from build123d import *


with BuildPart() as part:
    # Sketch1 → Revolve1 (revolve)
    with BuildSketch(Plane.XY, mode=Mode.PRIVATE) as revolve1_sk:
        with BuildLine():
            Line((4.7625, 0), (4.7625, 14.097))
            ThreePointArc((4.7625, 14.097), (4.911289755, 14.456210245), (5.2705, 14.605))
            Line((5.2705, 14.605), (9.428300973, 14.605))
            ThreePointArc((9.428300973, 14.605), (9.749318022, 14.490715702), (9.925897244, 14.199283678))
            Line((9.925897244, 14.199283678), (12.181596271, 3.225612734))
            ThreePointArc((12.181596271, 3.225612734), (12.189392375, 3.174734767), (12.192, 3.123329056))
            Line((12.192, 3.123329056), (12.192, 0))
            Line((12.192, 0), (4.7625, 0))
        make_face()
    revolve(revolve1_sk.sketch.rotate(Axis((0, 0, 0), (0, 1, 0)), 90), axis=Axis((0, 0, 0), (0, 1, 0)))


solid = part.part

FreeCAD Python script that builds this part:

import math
import FreeCAD as App
import Part
import Sketcher
Q = App.Units.Quantity

doc = App.newDocument("Part")
body = doc.addObject("PartDesign::Body", "Body")

# Sketch on XY plane
sketch1 = body.newObject("Sketcher::SketchObject", "Sketch")
sketch1.AttachmentSupport = (doc.getObject("XY_Plane"), [""])
sketch1.MapMode = "FlatFace"
sketch1.addGeometry([
    Part.LineSegment(App.Vector(4.7625, 14.097, 0), App.Vector(4.7625, 0, 0)),  # 0
    Part.LineSegment(App.Vector(4.7625, 0, 0), App.Vector(12.192, 0, 0)),  # 1
    Part.LineSegment(App.Vector(12.192, 0, 0), App.Vector(12.192, 3.123329, 0)),  # 2
    Part.ArcOfCircle(Part.Circle(App.Vector(11.684, 3.123329, 0), App.Vector(0, 0, 1), 0.508), math.radians(0), math.radians(11.61567)),  # 3
    Part.LineSegment(App.Vector(12.181596, 3.225613, 0), App.Vector(9.925897, 14.199284, 0)),  # 4
    Part.ArcOfCircle(Part.Circle(App.Vector(9.428301, 14.097, 0), App.Vector(0, 0, 1), 0.508), math.radians(11.61567), math.radians(90)),  # 5
    Part.LineSegment(App.Vector(9.428301, 14.605, 0), App.Vector(5.2705, 14.605, 0)),  # 6
    Part.ArcOfCircle(Part.Circle(App.Vector(5.2705, 14.097, 0), App.Vector(0, 0, 1), 0.508), math.radians(90), math.radians(180)),  # 7
], False)
sketch1.addConstraint([
    Sketcher.Constraint("Coincident", 0, 2, 1, 1),
    Sketcher.Constraint("Coincident", 1, 2, 2, 1),
    Sketcher.Constraint("Tangent", 2, 2, 3, 1),
    Sketcher.Constraint("Tangent", 3, 2, 4, 1),
    Sketcher.Constraint("Tangent", 4, 2, 5, 1),
    Sketcher.Constraint("Tangent", 5, 2, 6, 1),
    Sketcher.Constraint("Tangent", 6, 2, 7, 1),
    Sketcher.Constraint("Tangent", 7, 2, 0, 1),
    Sketcher.Constraint("Vertical", 0),
    Sketcher.Constraint("Horizontal", 1),
    Sketcher.Constraint("Vertical", 2),
    Sketcher.Constraint("Horizontal", 6),
    Sketcher.Constraint("Equal", 3, 5),
    Sketcher.Constraint("Equal", 5, 7),
    Sketcher.Constraint("PointOnObject", 0, 2, -1),
    Sketcher.Constraint("Radius", 3, Q("0.02 in")),
    Sketcher.Constraint("DistanceY", 0, 2, 0, 1, Q("0.555 in")),
    Sketcher.Constraint("DistanceX", -1, 1, 3, 3, Q("0.46 in")),
    Sketcher.Constraint("DistanceX", 1, 1, 1, 2, Q("0.2925 in")),
    Sketcher.Constraint("DistanceX", 6, 2, 6, 1, Q("4.157801 mm")),
    Sketcher.Constraint("DistanceY", 2, 1, 2, 2, Q("3.123329 mm")),
])
revolution = body.newObject("PartDesign::Revolution", "Revolution")
revolution.Profile = sketch1
revolution.ReferenceAxis = (sketch1, ["V_Axis"])
revolution.Angle = 360

doc.recompute()
